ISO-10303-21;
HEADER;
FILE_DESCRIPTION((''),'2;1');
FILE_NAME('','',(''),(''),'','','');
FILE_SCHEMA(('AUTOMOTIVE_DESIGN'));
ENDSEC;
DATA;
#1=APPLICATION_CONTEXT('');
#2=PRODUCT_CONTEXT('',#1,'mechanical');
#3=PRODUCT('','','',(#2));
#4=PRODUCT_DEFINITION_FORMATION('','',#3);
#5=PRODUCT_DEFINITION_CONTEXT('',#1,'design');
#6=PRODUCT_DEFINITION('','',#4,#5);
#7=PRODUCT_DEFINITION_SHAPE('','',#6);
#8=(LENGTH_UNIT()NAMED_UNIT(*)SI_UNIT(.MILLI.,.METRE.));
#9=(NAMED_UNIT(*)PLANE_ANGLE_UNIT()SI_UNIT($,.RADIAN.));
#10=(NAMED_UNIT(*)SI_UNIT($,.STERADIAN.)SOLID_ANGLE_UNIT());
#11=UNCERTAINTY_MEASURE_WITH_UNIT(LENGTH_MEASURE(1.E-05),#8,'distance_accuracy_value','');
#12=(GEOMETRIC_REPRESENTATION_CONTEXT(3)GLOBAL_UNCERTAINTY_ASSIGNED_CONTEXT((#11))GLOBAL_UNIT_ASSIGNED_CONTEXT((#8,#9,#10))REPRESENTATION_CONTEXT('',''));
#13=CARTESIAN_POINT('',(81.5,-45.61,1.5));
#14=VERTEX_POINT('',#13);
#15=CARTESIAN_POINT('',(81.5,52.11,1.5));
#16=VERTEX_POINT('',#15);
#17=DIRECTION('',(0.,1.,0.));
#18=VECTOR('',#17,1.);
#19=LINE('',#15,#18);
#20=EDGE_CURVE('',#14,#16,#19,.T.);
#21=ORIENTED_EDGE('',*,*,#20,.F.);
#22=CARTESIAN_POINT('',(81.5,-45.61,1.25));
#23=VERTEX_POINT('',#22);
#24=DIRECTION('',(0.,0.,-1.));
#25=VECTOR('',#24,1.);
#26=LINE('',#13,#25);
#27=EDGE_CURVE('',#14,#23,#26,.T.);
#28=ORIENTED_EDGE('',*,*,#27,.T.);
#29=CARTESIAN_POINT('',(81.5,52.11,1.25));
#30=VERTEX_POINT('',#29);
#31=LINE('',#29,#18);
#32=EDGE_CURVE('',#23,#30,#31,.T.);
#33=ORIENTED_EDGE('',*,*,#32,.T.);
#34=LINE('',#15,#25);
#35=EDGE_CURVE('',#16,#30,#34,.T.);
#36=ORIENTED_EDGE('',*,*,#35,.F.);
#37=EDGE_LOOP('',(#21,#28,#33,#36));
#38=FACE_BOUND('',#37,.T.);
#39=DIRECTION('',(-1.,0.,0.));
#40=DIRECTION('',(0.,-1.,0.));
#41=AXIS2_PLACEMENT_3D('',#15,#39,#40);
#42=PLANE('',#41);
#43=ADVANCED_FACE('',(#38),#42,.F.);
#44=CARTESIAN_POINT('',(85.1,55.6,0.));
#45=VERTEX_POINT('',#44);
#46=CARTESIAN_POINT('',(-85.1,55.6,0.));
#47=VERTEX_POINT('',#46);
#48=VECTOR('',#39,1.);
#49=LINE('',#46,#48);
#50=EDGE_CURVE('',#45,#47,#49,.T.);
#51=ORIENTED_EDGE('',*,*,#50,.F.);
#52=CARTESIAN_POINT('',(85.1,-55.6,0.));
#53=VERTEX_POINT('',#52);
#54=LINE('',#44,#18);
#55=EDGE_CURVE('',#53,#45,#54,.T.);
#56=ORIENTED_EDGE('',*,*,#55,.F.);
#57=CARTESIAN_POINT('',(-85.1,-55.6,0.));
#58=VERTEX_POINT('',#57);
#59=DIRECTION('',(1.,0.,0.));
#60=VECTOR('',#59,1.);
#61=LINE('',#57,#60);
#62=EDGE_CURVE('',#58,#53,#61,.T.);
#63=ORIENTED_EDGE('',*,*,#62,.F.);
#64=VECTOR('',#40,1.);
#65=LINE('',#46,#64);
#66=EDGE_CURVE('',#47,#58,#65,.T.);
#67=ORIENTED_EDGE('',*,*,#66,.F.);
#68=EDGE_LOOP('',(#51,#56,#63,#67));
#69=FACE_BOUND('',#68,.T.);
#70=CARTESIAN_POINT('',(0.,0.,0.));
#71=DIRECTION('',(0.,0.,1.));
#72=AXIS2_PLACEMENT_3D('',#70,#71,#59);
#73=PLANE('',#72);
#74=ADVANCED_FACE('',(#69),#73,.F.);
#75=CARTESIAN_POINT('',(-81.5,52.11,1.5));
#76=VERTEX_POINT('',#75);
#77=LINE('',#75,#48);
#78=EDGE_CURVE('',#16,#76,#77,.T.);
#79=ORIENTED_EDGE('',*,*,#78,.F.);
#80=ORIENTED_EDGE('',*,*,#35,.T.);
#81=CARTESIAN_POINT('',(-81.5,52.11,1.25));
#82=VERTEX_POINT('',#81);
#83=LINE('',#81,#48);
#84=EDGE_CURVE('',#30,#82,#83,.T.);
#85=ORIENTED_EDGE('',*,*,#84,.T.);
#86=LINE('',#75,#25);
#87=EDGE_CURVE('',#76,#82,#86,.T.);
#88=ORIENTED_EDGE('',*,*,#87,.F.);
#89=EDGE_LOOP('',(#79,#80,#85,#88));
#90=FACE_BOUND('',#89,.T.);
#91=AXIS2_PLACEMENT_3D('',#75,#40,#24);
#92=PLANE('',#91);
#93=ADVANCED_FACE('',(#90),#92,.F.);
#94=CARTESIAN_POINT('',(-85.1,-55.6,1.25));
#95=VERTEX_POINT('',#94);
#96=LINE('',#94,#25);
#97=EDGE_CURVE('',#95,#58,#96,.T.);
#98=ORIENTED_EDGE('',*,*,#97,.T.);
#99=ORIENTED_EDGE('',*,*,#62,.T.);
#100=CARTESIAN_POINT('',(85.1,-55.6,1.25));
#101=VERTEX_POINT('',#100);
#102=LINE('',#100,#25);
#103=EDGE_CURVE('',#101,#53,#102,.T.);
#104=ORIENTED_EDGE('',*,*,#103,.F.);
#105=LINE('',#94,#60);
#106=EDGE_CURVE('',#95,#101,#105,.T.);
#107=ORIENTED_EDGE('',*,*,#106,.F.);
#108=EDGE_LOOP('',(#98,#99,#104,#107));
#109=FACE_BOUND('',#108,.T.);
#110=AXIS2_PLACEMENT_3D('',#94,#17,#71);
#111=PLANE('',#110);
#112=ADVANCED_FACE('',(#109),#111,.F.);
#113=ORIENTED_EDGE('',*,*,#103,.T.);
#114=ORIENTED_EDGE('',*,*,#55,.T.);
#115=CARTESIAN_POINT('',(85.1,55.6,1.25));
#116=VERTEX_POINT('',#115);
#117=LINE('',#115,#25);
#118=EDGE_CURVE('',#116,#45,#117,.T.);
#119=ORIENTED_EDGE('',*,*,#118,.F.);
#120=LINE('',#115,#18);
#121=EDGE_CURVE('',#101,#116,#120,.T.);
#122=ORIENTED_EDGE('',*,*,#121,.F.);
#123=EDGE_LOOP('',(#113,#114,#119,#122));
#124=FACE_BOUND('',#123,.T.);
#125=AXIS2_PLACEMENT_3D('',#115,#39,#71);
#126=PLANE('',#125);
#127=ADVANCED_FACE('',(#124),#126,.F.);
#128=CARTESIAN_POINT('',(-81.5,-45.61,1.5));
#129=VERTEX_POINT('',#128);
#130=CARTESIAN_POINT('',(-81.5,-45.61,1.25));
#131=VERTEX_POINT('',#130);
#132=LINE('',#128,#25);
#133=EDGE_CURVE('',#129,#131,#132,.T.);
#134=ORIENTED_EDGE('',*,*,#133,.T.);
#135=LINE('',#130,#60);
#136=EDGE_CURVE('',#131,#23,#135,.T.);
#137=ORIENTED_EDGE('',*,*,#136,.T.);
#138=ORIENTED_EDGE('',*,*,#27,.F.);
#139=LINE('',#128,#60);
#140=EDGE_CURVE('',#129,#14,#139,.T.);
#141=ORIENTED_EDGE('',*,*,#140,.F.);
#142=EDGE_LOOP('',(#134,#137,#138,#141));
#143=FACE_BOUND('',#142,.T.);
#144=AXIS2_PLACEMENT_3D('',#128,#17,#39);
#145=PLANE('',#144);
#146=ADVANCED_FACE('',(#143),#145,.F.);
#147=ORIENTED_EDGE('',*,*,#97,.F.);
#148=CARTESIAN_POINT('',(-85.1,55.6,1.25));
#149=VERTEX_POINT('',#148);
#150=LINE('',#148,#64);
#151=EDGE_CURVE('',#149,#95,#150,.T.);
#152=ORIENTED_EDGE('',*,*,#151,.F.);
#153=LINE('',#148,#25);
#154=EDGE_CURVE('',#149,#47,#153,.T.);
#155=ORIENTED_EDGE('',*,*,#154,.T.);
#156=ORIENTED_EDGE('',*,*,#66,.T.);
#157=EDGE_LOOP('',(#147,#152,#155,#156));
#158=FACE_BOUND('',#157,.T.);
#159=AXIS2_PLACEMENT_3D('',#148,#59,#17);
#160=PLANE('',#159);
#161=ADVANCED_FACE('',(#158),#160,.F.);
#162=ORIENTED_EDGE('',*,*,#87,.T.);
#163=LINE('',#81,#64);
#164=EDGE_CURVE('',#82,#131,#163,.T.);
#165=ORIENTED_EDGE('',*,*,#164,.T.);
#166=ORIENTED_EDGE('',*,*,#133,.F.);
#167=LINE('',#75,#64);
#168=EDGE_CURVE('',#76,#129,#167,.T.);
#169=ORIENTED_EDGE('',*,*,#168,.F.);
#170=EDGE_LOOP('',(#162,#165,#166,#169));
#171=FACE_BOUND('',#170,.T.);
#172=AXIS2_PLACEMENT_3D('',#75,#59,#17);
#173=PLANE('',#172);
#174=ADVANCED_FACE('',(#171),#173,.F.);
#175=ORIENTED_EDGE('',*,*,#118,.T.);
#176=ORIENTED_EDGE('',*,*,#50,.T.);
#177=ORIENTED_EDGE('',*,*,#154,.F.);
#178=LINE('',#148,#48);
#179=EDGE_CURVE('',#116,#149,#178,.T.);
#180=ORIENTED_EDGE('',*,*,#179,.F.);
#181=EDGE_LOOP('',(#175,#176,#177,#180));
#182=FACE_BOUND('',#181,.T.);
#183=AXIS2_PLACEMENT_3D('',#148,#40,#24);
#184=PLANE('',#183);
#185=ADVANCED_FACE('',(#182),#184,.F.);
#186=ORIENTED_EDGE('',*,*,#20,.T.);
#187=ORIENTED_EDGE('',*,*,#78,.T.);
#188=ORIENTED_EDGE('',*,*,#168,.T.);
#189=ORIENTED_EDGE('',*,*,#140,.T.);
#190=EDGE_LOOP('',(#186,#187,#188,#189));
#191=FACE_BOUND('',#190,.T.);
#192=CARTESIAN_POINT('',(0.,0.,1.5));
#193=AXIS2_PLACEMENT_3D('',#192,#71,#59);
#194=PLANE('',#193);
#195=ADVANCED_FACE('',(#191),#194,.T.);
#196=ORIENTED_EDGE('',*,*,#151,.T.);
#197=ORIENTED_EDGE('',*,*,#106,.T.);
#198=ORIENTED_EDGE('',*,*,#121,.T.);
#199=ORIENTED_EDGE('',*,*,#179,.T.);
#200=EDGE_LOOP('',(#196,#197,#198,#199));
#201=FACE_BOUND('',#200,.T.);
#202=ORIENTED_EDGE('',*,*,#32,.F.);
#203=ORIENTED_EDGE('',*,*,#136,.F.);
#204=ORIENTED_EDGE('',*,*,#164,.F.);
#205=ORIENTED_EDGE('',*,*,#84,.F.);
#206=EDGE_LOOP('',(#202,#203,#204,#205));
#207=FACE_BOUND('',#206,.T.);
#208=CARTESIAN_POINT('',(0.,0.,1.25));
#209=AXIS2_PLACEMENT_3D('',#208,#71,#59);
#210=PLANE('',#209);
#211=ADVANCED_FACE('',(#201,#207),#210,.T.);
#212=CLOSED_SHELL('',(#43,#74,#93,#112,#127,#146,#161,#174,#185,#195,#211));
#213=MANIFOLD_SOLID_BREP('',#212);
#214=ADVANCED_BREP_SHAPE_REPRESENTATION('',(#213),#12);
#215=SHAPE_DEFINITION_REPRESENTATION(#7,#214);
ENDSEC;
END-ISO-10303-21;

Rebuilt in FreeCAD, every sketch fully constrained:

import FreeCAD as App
import Part
import Sketcher

V = App.Vector
Q = App.Units.Quantity

doc = App.newDocument("Part")
body = doc.addObject("PartDesign::Body", "Body")

sketch1 = doc.addObject("Sketcher::SketchObject", "Sketch")
body.addObject(sketch1)
sketch1.AttachmentSupport = (doc.XY_Plane, [""])
sketch1.MapMode = "FlatFace"
sketch1.addGeometry([
    Part.LineSegment(V(-85, 56, 0), V(-85, -56, 0)),
    Part.LineSegment(V(-85, -56, 0), V(85, -56, 0)),
    Part.LineSegment(V(85, -56, 0), V(85, 56, 0)),
    Part.LineSegment(V(85, 56, 0), V(-85, 56, 0)),
], False)
sketch1.addConstraint([
    Sketcher.Constraint("Coincident", 0, 2, 1, 1),
    Sketcher.Constraint("Coincident", 1, 2, 2, 1),
    Sketcher.Constraint("Coincident", 2, 2, 3, 1),
    Sketcher.Constraint("Coincident", 3, 2, 0, 1),
    Sketcher.Constraint("Vertical", 0),
    Sketcher.Constraint("Horizontal", 1),
    Sketcher.Constraint("Vertical", 2),
    Sketcher.Constraint("Horizontal", 3),
    Sketcher.Constraint("Symmetric", 0, 2, 2, 2, -1, 1),
    Sketcher.Constraint("DistanceX", 1, 1, 1, 2, Q("170.2 mm")),
    Sketcher.Constraint("DistanceY", 0, 2, 0, 1, Q("111.2 mm")),
])
pad1 = doc.addObject("PartDesign::Pad", "Pad")
body.addObject(pad1)
pad1.Profile = sketch1
pad1.Length = 1.25

sketch2 = doc.addObject("Sketcher::SketchObject", "Sketch001")
body.addObject(sketch2)
sketch2.AttachmentSupport = (doc.XY_Plane, [""])
sketch2.MapMode = "FlatFace"
sketch2.AttachmentOffset = App.Placement(V(0, 0, 1.25), App.Rotation())
sketch2.addGeometry([
    Part.LineSegment(V(-82, 52, 0), V(-82, -46, 0)),
    Part.LineSegment(V(-82, -46, 0), V(82, -46, 0)),
    Part.LineSegment(V(82, -46, 0), V(82, 52, 0)),
    Part.LineSegment(V(82, 52, 0), V(-82, 52, 0)),
], False)
sketch2.addConstraint([
    Sketcher.Constraint("Coincident", 0, 2, 1, 1),
    Sketcher.Constraint("Coincident", 1, 2, 2, 1),
    Sketcher.Constraint("Coincident", 2, 2, 3, 1),
    Sketcher.Constraint("Coincident", 3, 2, 0, 1),
    Sketcher.Constraint("Vertical", 0),
    Sketcher.Constraint("Horizontal", 1),
    Sketcher.Constraint("Vertical", 2),
    Sketcher.Constraint("Horizontal", 3),
    Sketcher.Constraint("DistanceX", 1, 1, 1, 2, Q("163 mm")),
    Sketcher.Constraint("DistanceY", 0, 2, 0, 1, Q("97.72 mm")),
    Sketcher.Constraint("DistanceX", 0, 2, -1, 1, Q("81.5 mm")),
    Sketcher.Constraint("DistanceY", 0, 2, -1, 1, Q("45.61 mm")),
])
pad2 = doc.addObject("PartDesign::Pad", "Pad001")
body.addObject(pad2)
pad2.Profile = sketch2
pad2.Length = 0.25

doc.recompute()
